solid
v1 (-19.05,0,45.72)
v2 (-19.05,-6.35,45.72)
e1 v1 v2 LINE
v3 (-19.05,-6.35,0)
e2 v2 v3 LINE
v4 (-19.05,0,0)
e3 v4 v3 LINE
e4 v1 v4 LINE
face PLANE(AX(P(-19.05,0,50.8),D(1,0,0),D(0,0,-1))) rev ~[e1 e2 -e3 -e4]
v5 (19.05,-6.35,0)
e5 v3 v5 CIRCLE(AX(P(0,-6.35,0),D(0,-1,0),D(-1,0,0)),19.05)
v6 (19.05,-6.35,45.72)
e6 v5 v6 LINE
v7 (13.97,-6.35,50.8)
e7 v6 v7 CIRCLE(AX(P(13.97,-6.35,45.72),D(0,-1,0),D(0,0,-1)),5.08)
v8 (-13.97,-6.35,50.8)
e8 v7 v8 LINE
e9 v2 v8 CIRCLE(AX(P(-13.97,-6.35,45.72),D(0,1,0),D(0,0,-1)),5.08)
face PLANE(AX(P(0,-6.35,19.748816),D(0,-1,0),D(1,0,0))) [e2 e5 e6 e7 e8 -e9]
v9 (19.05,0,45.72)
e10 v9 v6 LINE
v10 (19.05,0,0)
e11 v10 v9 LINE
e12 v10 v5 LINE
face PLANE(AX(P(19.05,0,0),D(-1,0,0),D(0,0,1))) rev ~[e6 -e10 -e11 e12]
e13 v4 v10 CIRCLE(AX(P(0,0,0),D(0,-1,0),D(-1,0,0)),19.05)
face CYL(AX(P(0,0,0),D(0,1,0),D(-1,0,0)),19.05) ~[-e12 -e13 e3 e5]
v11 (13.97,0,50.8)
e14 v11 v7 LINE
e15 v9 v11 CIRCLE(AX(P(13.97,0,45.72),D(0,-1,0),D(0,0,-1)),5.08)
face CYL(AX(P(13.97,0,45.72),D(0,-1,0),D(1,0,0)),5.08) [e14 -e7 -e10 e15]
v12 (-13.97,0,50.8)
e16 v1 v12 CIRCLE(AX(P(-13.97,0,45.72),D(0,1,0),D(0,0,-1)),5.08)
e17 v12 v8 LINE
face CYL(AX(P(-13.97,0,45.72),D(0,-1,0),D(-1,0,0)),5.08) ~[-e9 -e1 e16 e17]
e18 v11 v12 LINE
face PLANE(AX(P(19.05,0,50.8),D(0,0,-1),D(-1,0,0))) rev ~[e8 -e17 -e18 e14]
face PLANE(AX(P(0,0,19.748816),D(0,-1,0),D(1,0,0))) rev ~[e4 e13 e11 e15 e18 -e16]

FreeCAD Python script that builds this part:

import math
import FreeCAD as App
import Part
import Sketcher
Q = App.Units.Quantity


def edges_at(feature, points):
    """Names of the edges that pass closest to the given points."""
    edges = feature.Shape.Edges
    near = lambda p: min(range(len(edges)), key=lambda i: edges[i].distToShape(Part.Vertex(*p))[0])
    return sorted({f"Edge{near(p) + 1}" for p in points})

doc = App.newDocument("Part")
body = doc.addObject("PartDesign::Body", "Body")

sketch1 = body.newObject("Sketcher::SketchObject", "Sketch")
sketch1.AttachmentSupport = (doc.getObject("XZ_Plane"), [""])
sketch1.MapMode = "FlatFace"
sketch1.addGeometry(Part.LineSegment(App.Vector(-19.05, 50.8, 0), App.Vector(-19.05, 0, 0)), False)
sketch1.addGeometry(Part.ArcOfCircle(Part.Circle(App.Vector(0, 0, 0), App.Vector(0, 0, 1), 19.05), math.radians(180), math.radians(360)), False)
sketch1.addGeometry(Part.LineSegment(App.Vector(19.05, 0, 0), App.Vector(19.05, 50.8, 0)), False)
sketch1.addGeometry(Part.LineSegment(App.Vector(19.05, 50.8, 0), App.Vector(-19.05, 50.8, 0)), False)
sketch1.addConstraint(Sketcher.Constraint("Tangent", 0, 2, 1, 1))
sketch1.addConstraint(Sketcher.Constraint("Tangent", 1, 2, 2, 1))
sketch1.addConstraint(Sketcher.Constraint("Coincident", 2, 2, 3, 1))
sketch1.addConstraint(Sketcher.Constraint("Coincident", 3, 2, 0, 1))
sketch1.addConstraint(Sketcher.Constraint("Vertical", 0))
sketch1.addConstraint(Sketcher.Constraint("Vertical", 2))
sketch1.addConstraint(Sketcher.Constraint("Horizontal", 3))
sketch1.addConstraint(Sketcher.Constraint("Coincident", 1, 3, -1, 1))
sketch1.addConstraint(Sketcher.Constraint("DistanceY", 0, 2, 0, 1, Q("2 in")))
sketch1.addConstraint(Sketcher.Constraint("Radius", 1, Q("0.75 in")))
pad1 = body.newObject("PartDesign::Pad", "Pad")
pad1.Profile = sketch1
pad1.Length = Q("0.25 in")
doc.recompute()

fillet = body.newObject("PartDesign::Fillet", "Fillet")
fillet.Base = (pad1, edges_at(pad1, [(19.05, -3.175, 50.8), (-19.05, -3.175, 50.8)]))
fillet.Radius = Q("0.2 in")

doc.recompute()
